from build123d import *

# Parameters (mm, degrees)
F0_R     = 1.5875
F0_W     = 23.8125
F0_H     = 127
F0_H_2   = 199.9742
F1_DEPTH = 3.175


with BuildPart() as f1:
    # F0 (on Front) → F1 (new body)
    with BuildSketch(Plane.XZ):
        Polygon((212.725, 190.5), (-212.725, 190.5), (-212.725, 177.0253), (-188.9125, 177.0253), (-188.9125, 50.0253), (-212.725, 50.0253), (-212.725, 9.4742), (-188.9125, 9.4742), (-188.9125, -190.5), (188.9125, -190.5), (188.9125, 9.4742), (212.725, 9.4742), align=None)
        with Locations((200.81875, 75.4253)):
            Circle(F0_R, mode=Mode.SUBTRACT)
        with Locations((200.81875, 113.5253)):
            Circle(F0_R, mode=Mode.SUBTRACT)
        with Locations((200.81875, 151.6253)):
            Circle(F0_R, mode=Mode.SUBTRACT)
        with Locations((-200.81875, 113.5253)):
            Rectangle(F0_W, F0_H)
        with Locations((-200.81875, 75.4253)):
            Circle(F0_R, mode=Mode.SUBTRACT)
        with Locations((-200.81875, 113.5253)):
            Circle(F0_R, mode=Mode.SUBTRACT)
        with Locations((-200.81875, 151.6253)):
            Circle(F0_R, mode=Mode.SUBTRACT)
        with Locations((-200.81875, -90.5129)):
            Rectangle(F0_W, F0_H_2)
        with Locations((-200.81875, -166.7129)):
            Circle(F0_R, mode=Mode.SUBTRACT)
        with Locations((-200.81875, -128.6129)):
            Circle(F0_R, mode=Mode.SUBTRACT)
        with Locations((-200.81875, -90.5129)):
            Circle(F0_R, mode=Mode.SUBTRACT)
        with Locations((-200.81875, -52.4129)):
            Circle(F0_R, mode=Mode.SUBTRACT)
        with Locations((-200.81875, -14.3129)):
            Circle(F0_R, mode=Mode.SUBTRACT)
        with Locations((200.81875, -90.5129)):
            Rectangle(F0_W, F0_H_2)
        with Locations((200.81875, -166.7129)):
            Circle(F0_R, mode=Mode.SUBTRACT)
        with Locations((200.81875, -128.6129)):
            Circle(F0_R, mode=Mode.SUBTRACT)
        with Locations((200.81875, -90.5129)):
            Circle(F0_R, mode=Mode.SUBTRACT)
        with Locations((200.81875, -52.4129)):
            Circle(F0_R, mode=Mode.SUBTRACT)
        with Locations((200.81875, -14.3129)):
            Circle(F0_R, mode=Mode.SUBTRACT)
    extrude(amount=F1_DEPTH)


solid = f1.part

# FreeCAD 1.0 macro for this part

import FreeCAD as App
import Part
import Sketcher
Q = App.Units.Quantity


def add_polygon(sketch, points):
    """Adds a closed chain of lines whose ends are joined by coincident constraints."""
    first, n = sketch.GeometryCount, len(points)
    for a, b in zip(points, points[1:] + points[:1]):
        sketch.addGeometry(Part.LineSegment(App.Vector(*a, 0), App.Vector(*b, 0)), False)
    for i in range(n):
        sketch.addConstraint(Sketcher.Constraint("Coincident", first + i, 2, first + (i + 1) % n, 1))

doc = App.newDocument("Part")
body = doc.addObject("PartDesign::Body", "Body")

# Sketch on XZ plane
sketch1 = body.newObject("Sketcher::SketchObject", "Sketch")
sketch1.AttachmentSupport = (doc.getObject("XZ_Plane"), [""])
sketch1.MapMode = "FlatFace"
add_polygon(sketch1, [(212.725, 190.5), (-212.725, 190.5), (-212.725, -190.5), (212.725, -190.5)])  # lines 0-3
sketch1.addGeometry(Part.Circle(App.Vector(-200.81875, -166.7129, 0), App.Vector(0, 0, 1), 1.5875), False)  # 4
sketch1.addGeometry(Part.Circle(App.Vector(-200.81875, -128.6129, 0), App.Vector(0, 0, 1), 1.5875), False)  # 5
sketch1.addGeometry(Part.Circle(App.Vector(-200.81875, -90.5129, 0), App.Vector(0, 0, 1), 1.5875), False)  # 6
sketch1.addGeometry(Part.Circle(App.Vector(-200.81875, -52.4129, 0), App.Vector(0, 0, 1), 1.5875), False)  # 7
sketch1.addGeometry(Part.Circle(App.Vector(-200.81875, -14.3129, 0), App.Vector(0, 0, 1), 1.5875), False)  # 8
sketch1.addGeometry(Part.Circle(App.Vector(200.81875, -166.7129, 0), App.Vector(0, 0, 1), 1.5875), False)  # 9
sketch1.addGeometry(Part.Circle(App.Vector(200.81875, -128.6129, 0), App.Vector(0, 0, 1), 1.5875), False)  # 10
sketch1.addGeometry(Part.Circle(App.Vector(200.81875, -90.5129, 0), App.Vector(0, 0, 1), 1.5875), False)  # 11
sketch1.addGeometry(Part.Circle(App.Vector(200.81875, -52.4129, 0), App.Vector(0, 0, 1), 1.5875), False)  # 12
sketch1.addGeometry(Part.Circle(App.Vector(200.81875, -14.3129, 0), App.Vector(0, 0, 1), 1.5875), False)  # 13
sketch1.addGeometry(Part.Circle(App.Vector(-200.81875, 75.4253, 0), App.Vector(0, 0, 1), 1.5875), False)  # 14
sketch1.addGeometry(Part.Circle(App.Vector(-200.81875, 113.5253, 0), App.Vector(0, 0, 1), 1.5875), False)  # 15
sketch1.addGeometry(Part.Circle(App.Vector(-200.81875, 151.6253, 0), App.Vector(0, 0, 1), 1.5875), False)  # 16
sketch1.addGeometry(Part.Circle(App.Vector(200.81875, 75.4253, 0), App.Vector(0, 0, 1), 1.5875), False)  # 17
sketch1.addGeometry(Part.Circle(App.Vector(200.81875, 113.5253, 0), App.Vector(0, 0, 1), 1.5875), False)  # 18
sketch1.addGeometry(Part.Circle(App.Vector(200.81875, 151.6253, 0), App.Vector(0, 0, 1), 1.5875), False)  # 19
sketch1.addConstraint([
    Sketcher.Constraint("Horizontal", 0),
    Sketcher.Constraint("Vertical", 1),
    Sketcher.Constraint("Horizontal", 2),
    Sketcher.Constraint("Vertical", 3),
    Sketcher.Constraint("Equal", 4, 5),
    Sketcher.Constraint("Equal", 5, 6),
    Sketcher.Constraint("Equal", 6, 7),
    Sketcher.Constraint("Equal", 7, 8),
    Sketcher.Constraint("Equal", 8, 9),
    Sketcher.Constraint("Equal", 9, 10),
    Sketcher.Constraint("Equal", 10, 11),
    Sketcher.Constraint("Equal", 11, 12),
    Sketcher.Constraint("Equal", 12, 13),
    Sketcher.Constraint("Equal", 13, 14),
    Sketcher.Constraint("Equal", 14, 15),
    Sketcher.Constraint("Equal", 15, 16),
    Sketcher.Constraint("Equal", 16, 17),
    Sketcher.Constraint("Equal", 17, 18),
    Sketcher.Constraint("Equal", 18, 19),
    Sketcher.Constraint("Symmetric", 0, 2, 2, 2, -1, 1),
    Sketcher.Constraint("Symmetric", 4, 3, 9, 3, -2),
    Sketcher.Constraint("Symmetric", 5, 3, 10, 3, -2),
    Sketcher.Constraint("Symmetric", 6, 3, 11, 3, -2),
    Sketcher.Constraint("Symmetric", 7, 3, 12, 3, -2),
    Sketcher.Constraint("Symmetric", 8, 3, 13, 3, -2),
    Sketcher.Constraint("Symmetric", 14, 3, 17, 3, -2),
    Sketcher.Constraint("Symmetric", 15, 3, 18, 3, -2),
    Sketcher.Constraint("Symmetric", 16, 3, 19, 3, -2),
    Sketcher.Constraint("Vertical", 4, 3, 5, 3),
    Sketcher.Constraint("Vertical", 5, 3, 6, 3),
    Sketcher.Constraint("Vertical", 6, 3, 7, 3),
    Sketcher.Constraint("Vertical", 7, 3, 8, 3),
    Sketcher.Constraint("Vertical", 8, 3, 14, 3),
    Sketcher.Constraint("Vertical", 14, 3, 15, 3),
    Sketcher.Constraint("Vertical", 15, 3, 16, 3),
    Sketcher.Constraint("DistanceY", 1, 2, 1, 1, Q("15 in")),
    Sketcher.Constraint("Diameter", 4, Q("0.125 in")),
    Sketcher.Constraint("DistanceY", 4, 3, 6, 3, Q("3 in")),
    Sketcher.Constraint("DistanceY", 5, 3, 7, 3, Q("3 in")),
    Sketcher.Constraint("DistanceY", 6, 3, 8, 3, Q("3 in")),
    Sketcher.Constraint("DistanceY", 14, 3, 16, 3, Q("3 in")),
    Sketcher.Constraint("DistanceX", 0, 2, 0, 1, Q("16.75 in")),
    Sketcher.Constraint("DistanceY", 4, 3, 5, 3, Q("1.5 in")),
    Sketcher.Constraint("DistanceY", 14, 3, 15, 3, Q("1.5 in")),
    Sketcher.Constraint("DistanceX", 4, 3, -1, 1, Q("7.90625 in")),
    Sketcher.Constraint("DistanceY", 8, 3, 14, 3, Q("3.533 in")),
    Sketcher.Constraint("DistanceY", 4, 3, -1, 1, Q("6.5635 in")),
])
pad1 = body.newObject("PartDesign::Pad", "Pad")
pad1.Profile = sketch1
pad1.Length = Q("0.125 in")

doc.recompute()
